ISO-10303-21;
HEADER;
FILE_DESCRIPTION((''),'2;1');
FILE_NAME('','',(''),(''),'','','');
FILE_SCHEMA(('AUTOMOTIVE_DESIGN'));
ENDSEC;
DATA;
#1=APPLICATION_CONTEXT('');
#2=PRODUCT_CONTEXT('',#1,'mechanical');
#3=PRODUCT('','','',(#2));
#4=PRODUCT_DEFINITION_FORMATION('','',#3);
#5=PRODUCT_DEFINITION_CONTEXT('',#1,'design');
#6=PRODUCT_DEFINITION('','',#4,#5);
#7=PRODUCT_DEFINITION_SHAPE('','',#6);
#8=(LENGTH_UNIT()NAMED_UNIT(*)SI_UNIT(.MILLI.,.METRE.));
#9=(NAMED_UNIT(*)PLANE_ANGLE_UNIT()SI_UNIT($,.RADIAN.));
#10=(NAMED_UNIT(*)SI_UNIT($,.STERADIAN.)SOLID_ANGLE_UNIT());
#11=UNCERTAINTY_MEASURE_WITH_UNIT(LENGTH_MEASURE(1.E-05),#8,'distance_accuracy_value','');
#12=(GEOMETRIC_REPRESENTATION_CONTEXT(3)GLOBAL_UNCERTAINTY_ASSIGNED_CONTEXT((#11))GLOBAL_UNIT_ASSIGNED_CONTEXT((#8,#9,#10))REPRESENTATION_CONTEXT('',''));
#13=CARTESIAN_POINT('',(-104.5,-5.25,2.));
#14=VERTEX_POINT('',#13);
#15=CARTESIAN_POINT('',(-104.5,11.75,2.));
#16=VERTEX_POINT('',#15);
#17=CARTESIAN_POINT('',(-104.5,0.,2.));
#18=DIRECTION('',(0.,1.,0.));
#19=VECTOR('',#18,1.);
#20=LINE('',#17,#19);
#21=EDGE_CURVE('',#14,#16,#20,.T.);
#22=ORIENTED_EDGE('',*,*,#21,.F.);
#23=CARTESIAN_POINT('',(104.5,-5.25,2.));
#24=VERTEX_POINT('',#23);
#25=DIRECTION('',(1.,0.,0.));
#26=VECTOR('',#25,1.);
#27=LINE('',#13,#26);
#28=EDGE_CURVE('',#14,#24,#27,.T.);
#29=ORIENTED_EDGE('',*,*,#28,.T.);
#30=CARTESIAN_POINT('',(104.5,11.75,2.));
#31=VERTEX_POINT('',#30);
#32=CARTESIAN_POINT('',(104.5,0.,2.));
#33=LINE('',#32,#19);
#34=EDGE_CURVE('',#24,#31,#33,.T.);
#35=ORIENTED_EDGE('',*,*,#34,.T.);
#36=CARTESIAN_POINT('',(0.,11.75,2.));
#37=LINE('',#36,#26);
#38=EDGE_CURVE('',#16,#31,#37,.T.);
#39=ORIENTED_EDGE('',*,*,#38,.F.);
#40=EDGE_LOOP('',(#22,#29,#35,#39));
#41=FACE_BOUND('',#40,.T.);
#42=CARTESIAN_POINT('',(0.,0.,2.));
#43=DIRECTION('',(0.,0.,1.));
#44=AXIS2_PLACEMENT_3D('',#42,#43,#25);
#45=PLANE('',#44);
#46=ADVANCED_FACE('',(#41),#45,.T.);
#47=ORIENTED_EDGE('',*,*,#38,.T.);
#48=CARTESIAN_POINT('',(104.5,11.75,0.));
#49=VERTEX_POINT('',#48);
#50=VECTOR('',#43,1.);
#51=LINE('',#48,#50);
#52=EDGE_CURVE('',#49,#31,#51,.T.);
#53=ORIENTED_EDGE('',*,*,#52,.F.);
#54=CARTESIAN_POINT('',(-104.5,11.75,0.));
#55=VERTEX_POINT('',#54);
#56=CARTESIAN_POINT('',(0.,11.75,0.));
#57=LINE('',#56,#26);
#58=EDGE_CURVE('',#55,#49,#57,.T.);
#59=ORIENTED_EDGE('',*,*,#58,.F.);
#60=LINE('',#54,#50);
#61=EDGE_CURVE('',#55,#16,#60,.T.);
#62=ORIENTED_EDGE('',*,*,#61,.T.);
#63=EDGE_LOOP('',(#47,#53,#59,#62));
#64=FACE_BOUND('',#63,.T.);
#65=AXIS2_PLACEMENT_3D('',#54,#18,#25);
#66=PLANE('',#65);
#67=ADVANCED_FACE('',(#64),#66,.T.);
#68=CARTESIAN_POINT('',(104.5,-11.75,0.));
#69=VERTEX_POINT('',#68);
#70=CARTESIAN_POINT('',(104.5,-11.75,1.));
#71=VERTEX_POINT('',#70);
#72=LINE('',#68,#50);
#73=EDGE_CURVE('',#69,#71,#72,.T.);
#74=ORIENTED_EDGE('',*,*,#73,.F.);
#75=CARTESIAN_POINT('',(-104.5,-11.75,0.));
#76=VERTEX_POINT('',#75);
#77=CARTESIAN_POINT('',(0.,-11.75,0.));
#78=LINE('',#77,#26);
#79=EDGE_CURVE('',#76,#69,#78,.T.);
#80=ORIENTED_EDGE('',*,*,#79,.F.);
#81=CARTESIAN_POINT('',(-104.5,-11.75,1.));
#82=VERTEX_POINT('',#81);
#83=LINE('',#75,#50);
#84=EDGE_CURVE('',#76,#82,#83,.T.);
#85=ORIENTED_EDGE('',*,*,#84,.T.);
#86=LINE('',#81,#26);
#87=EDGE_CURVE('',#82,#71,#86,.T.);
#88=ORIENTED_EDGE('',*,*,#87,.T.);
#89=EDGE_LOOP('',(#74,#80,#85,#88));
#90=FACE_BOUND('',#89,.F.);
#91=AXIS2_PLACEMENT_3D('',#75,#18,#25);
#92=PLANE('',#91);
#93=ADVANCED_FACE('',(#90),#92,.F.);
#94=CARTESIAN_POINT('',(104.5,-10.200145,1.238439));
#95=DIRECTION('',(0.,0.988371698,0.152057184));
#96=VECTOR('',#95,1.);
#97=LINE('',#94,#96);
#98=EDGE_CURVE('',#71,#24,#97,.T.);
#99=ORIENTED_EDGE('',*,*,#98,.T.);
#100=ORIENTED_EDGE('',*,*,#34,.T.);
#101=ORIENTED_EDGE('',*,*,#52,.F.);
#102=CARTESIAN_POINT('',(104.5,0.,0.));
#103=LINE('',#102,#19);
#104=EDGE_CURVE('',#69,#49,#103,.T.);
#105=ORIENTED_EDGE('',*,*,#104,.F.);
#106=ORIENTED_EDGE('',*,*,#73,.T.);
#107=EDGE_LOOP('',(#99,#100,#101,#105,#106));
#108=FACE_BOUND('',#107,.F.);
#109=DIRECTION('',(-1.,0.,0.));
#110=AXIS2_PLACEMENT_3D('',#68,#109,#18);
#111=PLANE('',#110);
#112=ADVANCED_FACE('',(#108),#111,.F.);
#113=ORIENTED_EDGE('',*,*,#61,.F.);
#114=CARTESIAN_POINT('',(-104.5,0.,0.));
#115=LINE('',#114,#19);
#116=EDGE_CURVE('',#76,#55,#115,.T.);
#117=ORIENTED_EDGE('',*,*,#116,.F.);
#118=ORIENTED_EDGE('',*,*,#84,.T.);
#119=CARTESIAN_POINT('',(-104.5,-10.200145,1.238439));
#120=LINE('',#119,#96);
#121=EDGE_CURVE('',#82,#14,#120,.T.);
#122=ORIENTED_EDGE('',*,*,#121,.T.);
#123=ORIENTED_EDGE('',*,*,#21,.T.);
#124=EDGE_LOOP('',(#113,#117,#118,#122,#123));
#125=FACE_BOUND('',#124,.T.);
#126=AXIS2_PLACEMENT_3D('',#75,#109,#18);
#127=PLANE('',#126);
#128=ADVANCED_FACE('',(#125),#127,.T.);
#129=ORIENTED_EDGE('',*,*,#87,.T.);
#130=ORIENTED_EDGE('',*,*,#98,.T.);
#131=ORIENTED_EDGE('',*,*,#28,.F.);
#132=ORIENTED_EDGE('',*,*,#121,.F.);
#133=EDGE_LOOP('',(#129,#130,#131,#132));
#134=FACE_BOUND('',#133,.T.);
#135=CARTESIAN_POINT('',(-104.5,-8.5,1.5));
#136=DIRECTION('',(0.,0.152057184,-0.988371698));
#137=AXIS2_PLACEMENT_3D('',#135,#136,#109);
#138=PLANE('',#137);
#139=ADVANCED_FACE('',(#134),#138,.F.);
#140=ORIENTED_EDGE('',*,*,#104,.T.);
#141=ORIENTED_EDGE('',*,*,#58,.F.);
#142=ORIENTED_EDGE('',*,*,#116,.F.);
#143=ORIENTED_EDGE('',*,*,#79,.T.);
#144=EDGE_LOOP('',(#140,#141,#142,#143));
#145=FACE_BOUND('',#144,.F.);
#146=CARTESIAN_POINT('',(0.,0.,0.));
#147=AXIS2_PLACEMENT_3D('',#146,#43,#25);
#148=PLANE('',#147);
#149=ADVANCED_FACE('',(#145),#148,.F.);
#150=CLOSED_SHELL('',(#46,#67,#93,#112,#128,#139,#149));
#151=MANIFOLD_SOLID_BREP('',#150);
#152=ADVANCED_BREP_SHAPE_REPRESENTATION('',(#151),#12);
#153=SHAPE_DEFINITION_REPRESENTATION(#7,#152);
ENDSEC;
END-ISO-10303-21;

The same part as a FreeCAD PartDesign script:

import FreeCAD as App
import Part
import Sketcher

V = App.Vector
Q = App.Units.Quantity


def edges_at(feature, points):
    """Names of the edges that pass closest to the given points."""
    edges = feature.Shape.Edges
    near = lambda p: min(range(len(edges)), key=lambda i: edges[i].distToShape(Part.Vertex(*p))[0])
    return sorted({f"Edge{near(p) + 1}" for p in points})

doc = App.newDocument("Part")
params = doc.addObject("Spreadsheet::Sheet", "Params")
for row, (alias, value) in enumerate([
    ("sketch1_width", "209 mm"),
    ("sketch1_height", "23.5 mm"),
    ("pad1_length", "2 mm"),
    ("chamfer_size", "1 mm"),
    ("chamfer_size2", "6.5 mm"),
], start=1):
    params.set(f"A{row}", alias)
    params.set(f"B{row}", "=" + value)
    params.setAlias(f"B{row}", alias)

body = doc.addObject("PartDesign::Body", "Body")

# Sketch on XY plane
sketch1 = doc.addObject("Sketcher::SketchObject", "Sketch")
body.addObject(sketch1)
sketch1.AttachmentSupport = (doc.XY_Plane, [""])
sketch1.MapMode = "FlatFace"
sketch1.addGeometry(Part.LineSegment(V(-104, 12, 0), V(-104, -12, 0)), False)
sketch1.addGeometry(Part.LineSegment(V(-104, -12, 0), V(104, -12, 0)), False)
sketch1.addGeometry(Part.LineSegment(V(104, -12, 0), V(104, 12, 0)), False)
sketch1.addGeometry(Part.LineSegment(V(104, 12, 0), V(-104, 12, 0)), False)
sketch1.addConstraint(Sketcher.Constraint("Coincident", 0, 2, 1, 1))
sketch1.addConstraint(Sketcher.Constraint("Coincident", 1, 2, 2, 1))
sketch1.addConstraint(Sketcher.Constraint("Coincident", 2, 2, 3, 1))
sketch1.addConstraint(Sketcher.Constraint("Coincident", 3, 2, 0, 1))
sketch1.addConstraint(Sketcher.Constraint("Vertical", 0))
sketch1.addConstraint(Sketcher.Constraint("Horizontal", 1))
sketch1.addConstraint(Sketcher.Constraint("Vertical", 2))
sketch1.addConstraint(Sketcher.Constraint("Horizontal", 3))
sketch1.addConstraint(Sketcher.Constraint("Symmetric", 0, 2, 2, 2, -1, 1))
sketch1.addConstraint(Sketcher.Constraint("DistanceX", 1, 1, 1, 2, Q("209 mm")))
sketch1.addConstraint(Sketcher.Constraint("DistanceY", 0, 2, 0, 1, Q("23.5 mm")))
sketch1.setExpression("Constraints[9]", "Params.sketch1_width")
sketch1.setExpression("Constraints[10]", "Params.sketch1_height")
pad1 = doc.addObject("PartDesign::Pad", "Pad")
body.addObject(pad1)
pad1.Profile = sketch1
pad1.setExpression("Length", "Params.pad1_length")
doc.recompute()

chamfer = doc.addObject("PartDesign::Chamfer", "Chamfer")
body.addObject(chamfer)
chamfer.Base = (pad1, edges_at(pad1, [(0, -11.75, 2)]))
chamfer.ChamferType = "Two distances"
chamfer.setExpression("Size", "Params.chamfer_size")
chamfer.setExpression("Size2", "Params.chamfer_size2")

doc.recompute()
